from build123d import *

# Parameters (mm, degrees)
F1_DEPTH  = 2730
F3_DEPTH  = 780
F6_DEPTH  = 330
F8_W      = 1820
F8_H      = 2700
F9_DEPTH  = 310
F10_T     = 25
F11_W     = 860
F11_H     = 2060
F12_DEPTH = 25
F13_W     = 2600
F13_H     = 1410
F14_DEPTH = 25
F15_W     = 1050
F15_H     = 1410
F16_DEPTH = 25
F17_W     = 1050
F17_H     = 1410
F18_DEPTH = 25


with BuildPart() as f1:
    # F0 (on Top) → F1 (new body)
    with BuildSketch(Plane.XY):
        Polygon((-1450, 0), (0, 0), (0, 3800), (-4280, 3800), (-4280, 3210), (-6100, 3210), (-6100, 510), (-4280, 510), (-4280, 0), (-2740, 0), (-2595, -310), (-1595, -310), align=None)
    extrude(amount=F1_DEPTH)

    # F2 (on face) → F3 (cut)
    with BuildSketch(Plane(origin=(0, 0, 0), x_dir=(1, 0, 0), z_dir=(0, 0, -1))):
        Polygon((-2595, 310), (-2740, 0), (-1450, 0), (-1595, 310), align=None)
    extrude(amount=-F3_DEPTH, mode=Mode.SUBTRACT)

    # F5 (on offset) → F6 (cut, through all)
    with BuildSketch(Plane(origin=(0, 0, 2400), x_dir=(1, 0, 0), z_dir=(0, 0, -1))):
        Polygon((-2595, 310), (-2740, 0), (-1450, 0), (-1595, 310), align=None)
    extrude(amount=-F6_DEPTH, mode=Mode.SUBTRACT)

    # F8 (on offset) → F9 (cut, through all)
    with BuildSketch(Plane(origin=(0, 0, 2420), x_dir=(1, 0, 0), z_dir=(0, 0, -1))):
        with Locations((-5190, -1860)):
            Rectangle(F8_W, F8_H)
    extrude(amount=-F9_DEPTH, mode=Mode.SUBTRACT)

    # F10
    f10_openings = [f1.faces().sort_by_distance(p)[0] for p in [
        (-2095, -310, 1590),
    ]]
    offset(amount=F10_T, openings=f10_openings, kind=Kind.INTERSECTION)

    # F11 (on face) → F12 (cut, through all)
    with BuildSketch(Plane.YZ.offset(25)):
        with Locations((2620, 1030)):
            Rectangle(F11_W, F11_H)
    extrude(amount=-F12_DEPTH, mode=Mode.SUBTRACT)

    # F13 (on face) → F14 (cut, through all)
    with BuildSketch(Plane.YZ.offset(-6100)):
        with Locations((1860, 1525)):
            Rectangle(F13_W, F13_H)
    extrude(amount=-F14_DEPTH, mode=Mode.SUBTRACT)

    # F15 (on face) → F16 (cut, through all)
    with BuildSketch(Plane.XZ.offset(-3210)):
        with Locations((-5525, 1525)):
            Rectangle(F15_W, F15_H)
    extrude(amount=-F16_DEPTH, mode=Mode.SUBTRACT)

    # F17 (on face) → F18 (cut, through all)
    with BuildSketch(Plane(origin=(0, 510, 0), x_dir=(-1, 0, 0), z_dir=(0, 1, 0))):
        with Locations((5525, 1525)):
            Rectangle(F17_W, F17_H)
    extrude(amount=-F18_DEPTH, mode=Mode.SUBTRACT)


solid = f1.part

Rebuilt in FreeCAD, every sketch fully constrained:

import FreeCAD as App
import Part
import Sketcher
from FreeCAD import Vector
Q = App.Units.Quantity


def faces_at(feature, points):
    """Names of the faces that lie closest to the given points."""
    faces = feature.Shape.Faces
    near = lambda p: min(range(len(faces)), key=lambda i: faces[i].distToShape(Part.Vertex(*p))[0])
    return sorted({f"Face{near(p) + 1}" for p in points})

doc = App.newDocument("Part")
body = doc.addObject("PartDesign::Body", "Body")

# Sketch on XY plane
sketch1 = body.newObject("Sketcher::SketchObject", "Sketch")
sketch1.AttachmentSupport = (doc.getObject("XY_Plane"), [""])
sketch1.MapMode = "FlatFace"
sketch1.addGeometry(Part.LineSegment(Vector(-1450, 0, 0), Vector(0, 0, 0)), False)
sketch1.addGeometry(Part.LineSegment(Vector(0, 0, 0), Vector(0, 3800, 0)), False)
sketch1.addGeometry(Part.LineSegment(Vector(0, 3800, 0), Vector(-4280, 3800, 0)), False)
sketch1.addGeometry(Part.LineSegment(Vector(-4280, 3800, 0), Vector(-4280, 3210, 0)), False)
sketch1.addGeometry(Part.LineSegment(Vector(-4280, 3210, 0), Vector(-6100, 3210, 0)), False)
sketch1.addGeometry(Part.LineSegment(Vector(-6100, 3210, 0), Vector(-6100, 510, 0)), False)
sketch1.addGeometry(Part.LineSegment(Vector(-6100, 510, 0), Vector(-4280, 510, 0)), False)
sketch1.addGeometry(Part.LineSegment(Vector(-4280, 510, 0), Vector(-4280, 0, 0)), False)
sketch1.addGeometry(Part.LineSegment(Vector(-4280, 0, 0), Vector(-2740, 0, 0)), False)
sketch1.addGeometry(Part.LineSegment(Vector(-2740, 0, 0), Vector(-2595, -310, 0)), False)
sketch1.addGeometry(Part.LineSegment(Vector(-2595, -310, 0), Vector(-1595, -310, 0)), False)
sketch1.addGeometry(Part.LineSegment(Vector(-1595, -310, 0), Vector(-1450, 0, 0)), False)
sketch1.addConstraint(Sketcher.Constraint("Coincident", 0, 2, 1, 1))
sketch1.addConstraint(Sketcher.Constraint("Coincident", 1, 2, 2, 1))
sketch1.addConstraint(Sketcher.Constraint("Coincident", 2, 2, 3, 1))
sketch1.addConstraint(Sketcher.Constraint("Coincident", 3, 2, 4, 1))
sketch1.addConstraint(Sketcher.Constraint("Coincident", 4, 2, 5, 1))
sketch1.addConstraint(Sketcher.Constraint("Coincident", 5, 2, 6, 1))
sketch1.addConstraint(Sketcher.Constraint("Coincident", 6, 2, 7, 1))
sketch1.addConstraint(Sketcher.Constraint("Coincident", 7, 2, 8, 1))
sketch1.addConstraint(Sketcher.Constraint("Coincident", 8, 2, 9, 1))
sketch1.addConstraint(Sketcher.Constraint("Coincident", 9, 2, 10, 1))
sketch1.addConstraint(Sketcher.Constraint("Coincident", 10, 2, 11, 1))
sketch1.addConstraint(Sketcher.Constraint("Coincident", 11, 2, 0, 1))
sketch1.addConstraint(Sketcher.Constraint("Horizontal", 0))
sketch1.addConstraint(Sketcher.Constraint("Vertical", 1))
sketch1.addConstraint(Sketcher.Constraint("Horizontal", 2))
sketch1.addConstraint(Sketcher.Constraint("Vertical", 3))
sketch1.addConstraint(Sketcher.Constraint("Horizontal", 4))
sketch1.addConstraint(Sketcher.Constraint("Vertical", 5))
sketch1.addConstraint(Sketcher.Constraint("Horizontal", 6))
sketch1.addConstraint(Sketcher.Constraint("Vertical", 7))
sketch1.addConstraint(Sketcher.Constraint("Horizontal", 8))
sketch1.addConstraint(Sketcher.Constraint("Horizontal", 10))
sketch1.addConstraint(Sketcher.Constraint("Coincident", 0, 2, -1, 1))
sketch1.addConstraint(Sketcher.Constraint("PointOnObject", 7, 2, -1))
sketch1.addConstraint(Sketcher.Constraint("Vertical", 3, 2, 6, 2))
sketch1.addConstraint(Sketcher.Constraint("Equal", 9, 11))
sketch1.addConstraint(Sketcher.Constraint("DistanceX", 0, 1, 0, 2, Q("1450 mm")))
sketch1.addConstraint(Sketcher.Constraint("DistanceX", 2, 2, 2, 1, Q("4280 mm")))
sketch1.addConstraint(Sketcher.Constraint("DistanceX", 4, 2, 4, 1, Q("1820 mm")))
sketch1.addConstraint(Sketcher.Constraint("DistanceX", 8, 1, 8, 2, Q("1540 mm")))
sketch1.addConstraint(Sketcher.Constraint("DistanceX", 10, 1, 10, 2, Q("1000 mm")))
sketch1.addConstraint(Sketcher.Constraint("DistanceY", 1, 1, 1, 2, Q("3800 mm")))
sketch1.addConstraint(Sketcher.Constraint("DistanceY", 3, 2, 3, 1, Q("590 mm")))
sketch1.addConstraint(Sketcher.Constraint("DistanceY", 5, 2, 5, 1, Q("2700 mm")))
sketch1.addConstraint(Sketcher.Constraint("DistanceY", 9, 2, -1, 1, Q("310 mm")))
pad1 = body.newObject("PartDesign::Pad", "Pad")
pad1.Profile = sketch1
pad1.Length = 2730

# Sketch on XY plane
sketch2 = body.newObject("Sketcher::SketchObject", "Sketch001")
sketch2.AttachmentSupport = (doc.getObject("XY_Plane"), [""])
sketch2.MapMode = "FlatFace"
sketch2.addGeometry(Part.LineSegment(Vector(-2595, -310, 0), Vector(-2740, 0, 0)), False)
sketch2.addGeometry(Part.LineSegment(Vector(-2740, 0, 0), Vector(-1450, 0, 0)), False)
sketch2.addGeometry(Part.LineSegment(Vector(-1450, 0, 0), Vector(-1595, -310, 0)), False)
sketch2.addGeometry(Part.LineSegment(Vector(-1595, -310, 0), Vector(-2595, -310, 0)), False)
sketch2.addConstraint(Sketcher.Constraint("Coincident", 0, 2, 1, 1))
sketch2.addConstraint(Sketcher.Constraint("Coincident", 1, 2, 2, 1))
sketch2.addConstraint(Sketcher.Constraint("Coincident", 2, 2, 3, 1))
sketch2.addConstraint(Sketcher.Constraint("Coincident", 3, 2, 0, 1))
sketch2.addConstraint(Sketcher.Constraint("Horizontal", 1))
sketch2.addConstraint(Sketcher.Constraint("Horizontal", 3))
sketch2.addConstraint(Sketcher.Constraint("PointOnObject", 0, 2, -1))
sketch2.addConstraint(Sketcher.Constraint("Equal", 0, 2))
sketch2.addConstraint(Sketcher.Constraint("DistanceX", 1, 1, 1, 2, Q("1290 mm")))
sketch2.addConstraint(Sketcher.Constraint("DistanceX", 3, 2, 3, 1, Q("1000 mm")))
sketch2.addConstraint(Sketcher.Constraint("DistanceX", 0, 2, -1, 1, Q("2740 mm")))
sketch2.addConstraint(Sketcher.Constraint("DistanceY", 2, 2, -1, 1, Q("310 mm")))
pocket1 = body.newObject("PartDesign::Pocket", "Pocket")
pocket1.Profile = sketch2
pocket1.Length = 780
pocket1.Reversed = True

# Sketch on XY plane
sketch3 = body.newObject("Sketcher::SketchObject", "Sketch002")
sketch3.AttachmentSupport = (doc.getObject("XY_Plane"), [""])
sketch3.MapMode = "FlatFace"
sketch3.AttachmentOffset = App.Placement(Vector(0, 0, 2400), App.Rotation())
sketch3.addGeometry(Part.LineSegment(Vector(-2595, -310, 0), Vector(-2740, 0, 0)), False)
sketch3.addGeometry(Part.LineSegment(Vector(-2740, 0, 0), Vector(-1450, 0, 0)), False)
sketch3.addGeometry(Part.LineSegment(Vector(-1450, 0, 0), Vector(-1595, -310, 0)), False)
sketch3.addGeometry(Part.LineSegment(Vector(-1595, -310, 0), Vector(-2595, -310, 0)), False)
sketch3.addConstraint(Sketcher.Constraint("Coincident", 0, 2, 1, 1))
sketch3.addConstraint(Sketcher.Constraint("Coincident", 1, 2, 2, 1))
sketch3.addConstraint(Sketcher.Constraint("Coincident", 2, 2, 3, 1))
sketch3.addConstraint(Sketcher.Constraint("Coincident", 3, 2, 0, 1))
sketch3.addConstraint(Sketcher.Constraint("Horizontal", 1))
sketch3.addConstraint(Sketcher.Constraint("Horizontal", 3))
sketch3.addConstraint(Sketcher.Constraint("PointOnObject", 0, 2, -1))
sketch3.addConstraint(Sketcher.Constraint("Equal", 0, 2))
sketch3.addConstraint(Sketcher.Constraint("DistanceX", 1, 1, 1, 2, Q("1290 mm")))
sketch3.addConstraint(Sketcher.Constraint("DistanceX", 3, 2, 3, 1, Q("1000 mm")))
sketch3.addConstraint(Sketcher.Constraint("DistanceX", 0, 2, -1, 1, Q("2740 mm")))
sketch3.addConstraint(Sketcher.Constraint("DistanceY", 2, 2, -1, 1, Q("310 mm")))
pocket2 = body.newObject("PartDesign::Pocket", "Pocket001")
pocket2.Profile = sketch3
pocket2.Type = "ThroughAll"
pocket2.Reversed = True

# Sketch on XY plane
sketch4 = body.newObject("Sketcher::SketchObject", "Sketch003")
sketch4.AttachmentSupport = (doc.getObject("XY_Plane"), [""])
sketch4.MapMode = "FlatFace"
sketch4.AttachmentOffset = App.Placement(Vector(0, 0, 2420), App.Rotation())
sketch4.addGeometry(Part.LineSegment(Vector(-6100, 510, 0), Vector(-6100, 3210, 0)), False)
sketch4.addGeometry(Part.LineSegment(Vector(-6100, 3210, 0), Vector(-4280, 3210, 0)), False)
sketch4.addGeometry(Part.LineSegment(Vector(-4280, 3210, 0), Vector(-4280, 510, 0)), False)
sketch4.addGeometry(Part.LineSegment(Vector(-4280, 510, 0), Vector(-6100, 510, 0)), False)
sketch4.addConstraint(Sketcher.Constraint("Coincident", 0, 2, 1, 1))
sketch4.addConstraint(Sketcher.Constraint("Coincident", 1, 2, 2, 1))
sketch4.addConstraint(Sketcher.Constraint("Coincident", 2, 2, 3, 1))
sketch4.addConstraint(Sketcher.Constraint("Coincident", 3, 2, 0, 1))
sketch4.addConstraint(Sketcher.Constraint("Vertical", 0))
sketch4.addConstraint(Sketcher.Constraint("Horizontal", 1))
sketch4.addConstraint(Sketcher.Constraint("Vertical", 2))
sketch4.addConstraint(Sketcher.Constraint("Horizontal", 3))
sketch4.addConstraint(Sketcher.Constraint("DistanceX", 1, 1, 1, 2, Q("1820 mm")))
sketch4.addConstraint(Sketcher.Constraint("DistanceY", 0, 1, 0, 2, Q("2700 mm")))
sketch4.addConstraint(Sketcher.Constraint("DistanceX", 0, 2, -1, 1, Q("6100 mm")))
sketch4.addConstraint(Sketcher.Constraint("DistanceY", -1, 1, 0, 2, Q("3210 mm")))
pocket3 = body.newObject("PartDesign::Pocket", "Pocket002")
pocket3.Profile = sketch4
pocket3.Type = "ThroughAll"
pocket3.Reversed = True
doc.recompute()

thickness = body.newObject("PartDesign::Thickness", "Thickness")
thickness.Base = (pocket3, faces_at(pocket3, [(-2095, -310, 1590)]))
thickness.Value = 25
thickness.Reversed = False
thickness.Join = "Intersection"

# Sketch on YZ plane
sketch5 = body.newObject("Sketcher::SketchObject", "Sketch004")
sketch5.AttachmentSupport = (doc.getObject("YZ_Plane"), [""])
sketch5.MapMode = "FlatFace"
sketch5.AttachmentOffset = App.Placement(Vector(0, 0, 25), App.Rotation())
sketch5.addGeometry(Part.LineSegment(Vector(2190, 2060, 0), Vector(2190, 0, 0)), False)
sketch5.addGeometry(Part.LineSegment(Vector(2190, 0, 0), Vector(3050, 0, 0)), False)
sketch5.addGeometry(Part.LineSegment(Vector(3050, 0, 0), Vector(3050, 2060, 0)), False)
sketch5.addGeometry(Part.LineSegment(Vector(3050, 2060, 0), Vector(2190, 2060, 0)), False)
sketch5.addConstraint(Sketcher.Constraint("Coincident", 0, 2, 1, 1))
sketch5.addConstraint(Sketcher.Constraint("Coincident", 1, 2, 2, 1))
sketch5.addConstraint(Sketcher.Constraint("Coincident", 2, 2, 3, 1))
sketch5.addConstraint(Sketcher.Constraint("Coincident", 3, 2, 0, 1))
sketch5.addConstraint(Sketcher.Constraint("Vertical", 0))
sketch5.addConstraint(Sketcher.Constraint("Horizontal", 1))
sketch5.addConstraint(Sketcher.Constraint("Vertical", 2))
sketch5.addConstraint(Sketcher.Constraint("Horizontal", 3))
sketch5.addConstraint(Sketcher.Constraint("PointOnObject", 0, 2, -1))
sketch5.addConstraint(Sketcher.Constraint("DistanceX", 1, 1, 1, 2, Q("860 mm")))
sketch5.addConstraint(Sketcher.Constraint("DistanceY", 0, 2, 0, 1, Q("2060 mm")))
sketch5.addConstraint(Sketcher.Constraint("DistanceX", -1, 1, 0, 2, Q("2190 mm")))
pocket4 = body.newObject("PartDesign::Pocket", "Pocket003")
pocket4.Profile = sketch5
pocket4.Length = 25

# Sketch on YZ plane
sketch6 = body.newObject("Sketcher::SketchObject", "Sketch005")
sketch6.AttachmentSupport = (doc.getObject("YZ_Plane"), [""])
sketch6.MapMode = "FlatFace"
sketch6.AttachmentOffset = App.Placement(Vector(0, 0, -6100), App.Rotation())
sketch6.addGeometry(Part.LineSegment(Vector(560, 2230, 0), Vector(560, 820, 0)), False)
sketch6.addGeometry(Part.LineSegment(Vector(560, 820, 0), Vector(3160, 820, 0)), False)
sketch6.addGeometry(Part.LineSegment(Vector(3160, 820, 0), Vector(3160, 2230, 0)), False)
sketch6.addGeometry(Part.LineSegment(Vector(3160, 2230, 0), Vector(560, 2230, 0)), False)
sketch6.addConstraint(Sketcher.Constraint("Coincident", 0, 2, 1, 1))
sketch6.addConstraint(Sketcher.Constraint("Coincident", 1, 2, 2, 1))
sketch6.addConstraint(Sketcher.Constraint("Coincident", 2, 2, 3, 1))
sketch6.addConstraint(Sketcher.Constraint("Coincident", 3, 2, 0, 1))
sketch6.addConstraint(Sketcher.Constraint("Vertical", 0))
sketch6.addConstraint(Sketcher.Constraint("Horizontal", 1))
sketch6.addConstraint(Sketcher.Constraint("Vertical", 2))
sketch6.addConstraint(Sketcher.Constraint("Horizontal", 3))
sketch6.addConstraint(Sketcher.Constraint("DistanceX", 1, 1, 1, 2, Q("2600 mm")))
sketch6.addConstraint(Sketcher.Constraint("DistanceY", 0, 2, 0, 1, Q("1410 mm")))
sketch6.addConstraint(Sketcher.Constraint("DistanceX", -1, 1, 0, 2, Q("560 mm")))
sketch6.addConstraint(Sketcher.Constraint("DistanceY", -1, 1, 0, 2, Q("820 mm")))
pocket5 = body.newObject("PartDesign::Pocket", "Pocket004")
pocket5.Profile = sketch6
pocket5.Type = "ThroughAll"

# Sketch on XZ plane
sketch7 = body.newObject("Sketcher::SketchObject", "Sketch006")
sketch7.AttachmentSupport = (doc.getObject("XZ_Plane"), [""])
sketch7.MapMode = "FlatFace"
sketch7.AttachmentOffset = App.Placement(Vector(0, 0, -3210), App.Rotation())
sketch7.addGeometry(Part.LineSegment(Vector(-6050, 2230, 0), Vector(-6050, 820, 0)), False)
sketch7.addGeometry(Part.LineSegment(Vector(-6050, 820, 0), Vector(-5000, 820, 0)), False)
sketch7.addGeometry(Part.LineSegment(Vector(-5000, 820, 0), Vector(-5000, 2230, 0)), False)
sketch7.addGeometry(Part.LineSegment(Vector(-5000, 2230, 0), Vector(-6050, 2230, 0)), False)
sketch7.addConstraint(Sketcher.Constraint("Coincident", 0, 2, 1, 1))
sketch7.addConstraint(Sketcher.Constraint("Coincident", 1, 2, 2, 1))
sketch7.addConstraint(Sketcher.Constraint("Coincident", 2, 2, 3, 1))
sketch7.addConstraint(Sketcher.Constraint("Coincident", 3, 2, 0, 1))
sketch7.addConstraint(Sketcher.Constraint("Vertical", 0))
sketch7.addConstraint(Sketcher.Constraint("Horizontal", 1))
sketch7.addConstraint(Sketcher.Constraint("Vertical", 2))
sketch7.addConstraint(Sketcher.Constraint("Horizontal", 3))
sketch7.addConstraint(Sketcher.Constraint("DistanceX", 1, 1, 1, 2, Q("1050 mm")))
sketch7.addConstraint(Sketcher.Constraint("DistanceY", 0, 2, 0, 1, Q("1410 mm")))
sketch7.addConstraint(Sketcher.Constraint("DistanceX", 0, 2, -1, 1, Q("6050 mm")))
sketch7.addConstraint(Sketcher.Constraint("DistanceY", -1, 1, 0, 2, Q("820 mm")))
pocket6 = body.newObject("PartDesign::Pocket", "Pocket005")
pocket6.Profile = sketch7
pocket6.Type = "ThroughAll"

# Sketch on XZ plane
sketch8 = body.newObject("Sketcher::SketchObject", "Sketch007")
sketch8.AttachmentSupport = (doc.getObject("XZ_Plane"), [""])
sketch8.MapMode = "FlatFace"
sketch8.AttachmentOffset = App.Placement(Vector(0, 0, -510), App.Rotation())
sketch8.addGeometry(Part.LineSegment(Vector(-5000, 2230, 0), Vector(-5000, 820, 0)), False)
sketch8.addGeometry(Part.LineSegment(Vector(-5000, 820, 0), Vector(-6050, 820, 0)), False)
sketch8.addGeometry(Part.LineSegment(Vector(-6050, 820, 0), Vector(-6050, 2230, 0)), False)
sketch8.addGeometry(Part.LineSegment(Vector(-6050, 2230, 0), Vector(-5000, 2230, 0)), False)
sketch8.addConstraint(Sketcher.Constraint("Coincident", 0, 2, 1, 1))
sketch8.addConstraint(Sketcher.Constraint("Coincident", 1, 2, 2, 1))
sketch8.addConstraint(Sketcher.Constraint("Coincident", 2, 2, 3, 1))
sketch8.addConstraint(Sketcher.Constraint("Coincident", 3, 2, 0, 1))
sketch8.addConstraint(Sketcher.Constraint("Vertical", 0))
sketch8.addConstraint(Sketcher.Constraint("Horizontal", 1))
sketch8.addConstraint(Sketcher.Constraint("Vertical", 2))
sketch8.addConstraint(Sketcher.Constraint("Horizontal", 3))
sketch8.addConstraint(Sketcher.Constraint("DistanceX", 1, 2, 1, 1, Q("1050 mm")))
sketch8.addConstraint(Sketcher.Constraint("DistanceY", 0, 2, 0, 1, Q("1410 mm")))
sketch8.addConstraint(Sketcher.Constraint("DistanceX", 0, 2, -1, 1, Q("5000 mm")))
sketch8.addConstraint(Sketcher.Constraint("DistanceY", -1, 1, 0, 2, Q("820 mm")))
pocket7 = body.newObject("PartDesign::Pocket", "Pocket006")
pocket7.Profile = sketch8
pocket7.Type = "ThroughAll"
pocket7.Reversed = True

doc.recompute()
